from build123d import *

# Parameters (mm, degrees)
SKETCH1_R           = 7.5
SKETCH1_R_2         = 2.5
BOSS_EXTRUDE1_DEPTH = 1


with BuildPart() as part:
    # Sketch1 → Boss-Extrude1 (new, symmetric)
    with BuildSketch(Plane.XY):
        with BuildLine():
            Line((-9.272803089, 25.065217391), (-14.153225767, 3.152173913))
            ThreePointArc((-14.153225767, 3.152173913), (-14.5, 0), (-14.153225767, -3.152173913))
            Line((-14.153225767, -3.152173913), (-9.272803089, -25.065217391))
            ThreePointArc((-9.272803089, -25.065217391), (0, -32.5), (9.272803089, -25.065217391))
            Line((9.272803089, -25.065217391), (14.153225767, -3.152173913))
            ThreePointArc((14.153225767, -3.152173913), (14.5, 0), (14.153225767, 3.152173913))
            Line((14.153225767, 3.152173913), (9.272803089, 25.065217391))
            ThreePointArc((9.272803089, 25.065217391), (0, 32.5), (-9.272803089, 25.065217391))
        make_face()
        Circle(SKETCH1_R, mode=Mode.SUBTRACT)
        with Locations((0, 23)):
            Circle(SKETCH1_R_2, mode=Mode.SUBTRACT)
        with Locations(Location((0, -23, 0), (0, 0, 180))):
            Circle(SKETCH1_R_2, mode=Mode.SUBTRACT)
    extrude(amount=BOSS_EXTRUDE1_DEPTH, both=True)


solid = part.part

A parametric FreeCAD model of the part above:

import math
import FreeCAD as App
import Part
import Sketcher

V = App.Vector

doc = App.newDocument("Part")
body = doc.addObject("PartDesign::Body", "Body")

sketch1 = doc.addObject("Sketcher::SketchObject", "Sketch")
body.addObject(sketch1)
sketch1.AttachmentSupport = (doc.XY_Plane, [""])
sketch1.MapMode = "FlatFace"
sketch1.addGeometry([
    Part.LineSegment(V(-9.272803, 25.065217, 0), V(-14.153226, 3.152174, 0)),
    Part.ArcOfCircle(Part.Circle(V(0, 0, 0), V(0, 0, 1), 14.5), math.radians(167.444142), math.radians(192.555858)),
    Part.LineSegment(V(-14.153226, -3.152174, 0), V(-9.272803, -25.065217, 0)),
    Part.ArcOfCircle(Part.Circle(V(0, -23, 0), V(0, 0, 1), 9.5), math.radians(-167.444142), math.radians(-12.555858)),
    Part.LineSegment(V(9.272803, -25.065217, 0), V(14.153226, -3.152174, 0)),
    Part.ArcOfCircle(Part.Circle(V(0, 0, 0), V(0, 0, 1), 14.5), math.radians(-12.555858), math.radians(12.555858)),
    Part.LineSegment(V(14.153226, 3.152174, 0), V(9.272803, 25.065217, 0)),
    Part.ArcOfCircle(Part.Circle(V(0, 23, 0), V(0, 0, 1), 9.5), math.radians(12.555858), math.radians(167.444142)),
    Part.Circle(V(0, -23, 0), V(0, 0, 1), 2.5),
    Part.Circle(V(0, 0, 0), V(0, 0, 1), 7.5),
    Part.Circle(V(0, 23, 0), V(0, 0, 1), 2.5),
], False)
sketch1.addConstraint([
    Sketcher.Constraint("Tangent", 0, 2, 1, 1),
    Sketcher.Constraint("Tangent", 1, 2, 2, 1),
    Sketcher.Constraint("Tangent", 2, 2, 3, 1),
    Sketcher.Constraint("Tangent", 3, 2, 4, 1),
    Sketcher.Constraint("Tangent", 4, 2, 5, 1),
    Sketcher.Constraint("Tangent", 5, 2, 6, 1),
    Sketcher.Constraint("Tangent", 6, 2, 7, 1),
    Sketcher.Constraint("Tangent", 7, 2, 0, 1),
    Sketcher.Constraint("Coincident", 1, 3, -1, 1),
    Sketcher.Constraint("Coincident", 5, 3, -1, 1),
    Sketcher.Constraint("Coincident", 9, 3, -1, 1),
    Sketcher.Constraint("Coincident", 8, 3, 3, 3),
    Sketcher.Constraint("Coincident", 10, 3, 7, 3),
    Sketcher.Constraint("Equal", 1, 5),
    Sketcher.Constraint("Equal", 3, 7),
    Sketcher.Constraint("Equal", 8, 10),
    Sketcher.Constraint("Symmetric", 3, 3, 7, 3, -1, 1),
    Sketcher.Constraint("PointOnObject", 3, 3, -2),
    Sketcher.Constraint("Diameter", 8, 5.0),
    Sketcher.Constraint("Diameter", 9, 15.0),
    Sketcher.Constraint("Radius", 1, 14.5),
    Sketcher.Constraint("Radius", 3, 9.5),
    Sketcher.Constraint("DistanceY", 3, 3, -1, 1, 23.0),
])
pad1 = doc.addObject("PartDesign::Pad", "Pad")
body.addObject(pad1)
pad1.Profile = sketch1
pad1.Length = 2
pad1.Midplane = True

doc.recompute()
